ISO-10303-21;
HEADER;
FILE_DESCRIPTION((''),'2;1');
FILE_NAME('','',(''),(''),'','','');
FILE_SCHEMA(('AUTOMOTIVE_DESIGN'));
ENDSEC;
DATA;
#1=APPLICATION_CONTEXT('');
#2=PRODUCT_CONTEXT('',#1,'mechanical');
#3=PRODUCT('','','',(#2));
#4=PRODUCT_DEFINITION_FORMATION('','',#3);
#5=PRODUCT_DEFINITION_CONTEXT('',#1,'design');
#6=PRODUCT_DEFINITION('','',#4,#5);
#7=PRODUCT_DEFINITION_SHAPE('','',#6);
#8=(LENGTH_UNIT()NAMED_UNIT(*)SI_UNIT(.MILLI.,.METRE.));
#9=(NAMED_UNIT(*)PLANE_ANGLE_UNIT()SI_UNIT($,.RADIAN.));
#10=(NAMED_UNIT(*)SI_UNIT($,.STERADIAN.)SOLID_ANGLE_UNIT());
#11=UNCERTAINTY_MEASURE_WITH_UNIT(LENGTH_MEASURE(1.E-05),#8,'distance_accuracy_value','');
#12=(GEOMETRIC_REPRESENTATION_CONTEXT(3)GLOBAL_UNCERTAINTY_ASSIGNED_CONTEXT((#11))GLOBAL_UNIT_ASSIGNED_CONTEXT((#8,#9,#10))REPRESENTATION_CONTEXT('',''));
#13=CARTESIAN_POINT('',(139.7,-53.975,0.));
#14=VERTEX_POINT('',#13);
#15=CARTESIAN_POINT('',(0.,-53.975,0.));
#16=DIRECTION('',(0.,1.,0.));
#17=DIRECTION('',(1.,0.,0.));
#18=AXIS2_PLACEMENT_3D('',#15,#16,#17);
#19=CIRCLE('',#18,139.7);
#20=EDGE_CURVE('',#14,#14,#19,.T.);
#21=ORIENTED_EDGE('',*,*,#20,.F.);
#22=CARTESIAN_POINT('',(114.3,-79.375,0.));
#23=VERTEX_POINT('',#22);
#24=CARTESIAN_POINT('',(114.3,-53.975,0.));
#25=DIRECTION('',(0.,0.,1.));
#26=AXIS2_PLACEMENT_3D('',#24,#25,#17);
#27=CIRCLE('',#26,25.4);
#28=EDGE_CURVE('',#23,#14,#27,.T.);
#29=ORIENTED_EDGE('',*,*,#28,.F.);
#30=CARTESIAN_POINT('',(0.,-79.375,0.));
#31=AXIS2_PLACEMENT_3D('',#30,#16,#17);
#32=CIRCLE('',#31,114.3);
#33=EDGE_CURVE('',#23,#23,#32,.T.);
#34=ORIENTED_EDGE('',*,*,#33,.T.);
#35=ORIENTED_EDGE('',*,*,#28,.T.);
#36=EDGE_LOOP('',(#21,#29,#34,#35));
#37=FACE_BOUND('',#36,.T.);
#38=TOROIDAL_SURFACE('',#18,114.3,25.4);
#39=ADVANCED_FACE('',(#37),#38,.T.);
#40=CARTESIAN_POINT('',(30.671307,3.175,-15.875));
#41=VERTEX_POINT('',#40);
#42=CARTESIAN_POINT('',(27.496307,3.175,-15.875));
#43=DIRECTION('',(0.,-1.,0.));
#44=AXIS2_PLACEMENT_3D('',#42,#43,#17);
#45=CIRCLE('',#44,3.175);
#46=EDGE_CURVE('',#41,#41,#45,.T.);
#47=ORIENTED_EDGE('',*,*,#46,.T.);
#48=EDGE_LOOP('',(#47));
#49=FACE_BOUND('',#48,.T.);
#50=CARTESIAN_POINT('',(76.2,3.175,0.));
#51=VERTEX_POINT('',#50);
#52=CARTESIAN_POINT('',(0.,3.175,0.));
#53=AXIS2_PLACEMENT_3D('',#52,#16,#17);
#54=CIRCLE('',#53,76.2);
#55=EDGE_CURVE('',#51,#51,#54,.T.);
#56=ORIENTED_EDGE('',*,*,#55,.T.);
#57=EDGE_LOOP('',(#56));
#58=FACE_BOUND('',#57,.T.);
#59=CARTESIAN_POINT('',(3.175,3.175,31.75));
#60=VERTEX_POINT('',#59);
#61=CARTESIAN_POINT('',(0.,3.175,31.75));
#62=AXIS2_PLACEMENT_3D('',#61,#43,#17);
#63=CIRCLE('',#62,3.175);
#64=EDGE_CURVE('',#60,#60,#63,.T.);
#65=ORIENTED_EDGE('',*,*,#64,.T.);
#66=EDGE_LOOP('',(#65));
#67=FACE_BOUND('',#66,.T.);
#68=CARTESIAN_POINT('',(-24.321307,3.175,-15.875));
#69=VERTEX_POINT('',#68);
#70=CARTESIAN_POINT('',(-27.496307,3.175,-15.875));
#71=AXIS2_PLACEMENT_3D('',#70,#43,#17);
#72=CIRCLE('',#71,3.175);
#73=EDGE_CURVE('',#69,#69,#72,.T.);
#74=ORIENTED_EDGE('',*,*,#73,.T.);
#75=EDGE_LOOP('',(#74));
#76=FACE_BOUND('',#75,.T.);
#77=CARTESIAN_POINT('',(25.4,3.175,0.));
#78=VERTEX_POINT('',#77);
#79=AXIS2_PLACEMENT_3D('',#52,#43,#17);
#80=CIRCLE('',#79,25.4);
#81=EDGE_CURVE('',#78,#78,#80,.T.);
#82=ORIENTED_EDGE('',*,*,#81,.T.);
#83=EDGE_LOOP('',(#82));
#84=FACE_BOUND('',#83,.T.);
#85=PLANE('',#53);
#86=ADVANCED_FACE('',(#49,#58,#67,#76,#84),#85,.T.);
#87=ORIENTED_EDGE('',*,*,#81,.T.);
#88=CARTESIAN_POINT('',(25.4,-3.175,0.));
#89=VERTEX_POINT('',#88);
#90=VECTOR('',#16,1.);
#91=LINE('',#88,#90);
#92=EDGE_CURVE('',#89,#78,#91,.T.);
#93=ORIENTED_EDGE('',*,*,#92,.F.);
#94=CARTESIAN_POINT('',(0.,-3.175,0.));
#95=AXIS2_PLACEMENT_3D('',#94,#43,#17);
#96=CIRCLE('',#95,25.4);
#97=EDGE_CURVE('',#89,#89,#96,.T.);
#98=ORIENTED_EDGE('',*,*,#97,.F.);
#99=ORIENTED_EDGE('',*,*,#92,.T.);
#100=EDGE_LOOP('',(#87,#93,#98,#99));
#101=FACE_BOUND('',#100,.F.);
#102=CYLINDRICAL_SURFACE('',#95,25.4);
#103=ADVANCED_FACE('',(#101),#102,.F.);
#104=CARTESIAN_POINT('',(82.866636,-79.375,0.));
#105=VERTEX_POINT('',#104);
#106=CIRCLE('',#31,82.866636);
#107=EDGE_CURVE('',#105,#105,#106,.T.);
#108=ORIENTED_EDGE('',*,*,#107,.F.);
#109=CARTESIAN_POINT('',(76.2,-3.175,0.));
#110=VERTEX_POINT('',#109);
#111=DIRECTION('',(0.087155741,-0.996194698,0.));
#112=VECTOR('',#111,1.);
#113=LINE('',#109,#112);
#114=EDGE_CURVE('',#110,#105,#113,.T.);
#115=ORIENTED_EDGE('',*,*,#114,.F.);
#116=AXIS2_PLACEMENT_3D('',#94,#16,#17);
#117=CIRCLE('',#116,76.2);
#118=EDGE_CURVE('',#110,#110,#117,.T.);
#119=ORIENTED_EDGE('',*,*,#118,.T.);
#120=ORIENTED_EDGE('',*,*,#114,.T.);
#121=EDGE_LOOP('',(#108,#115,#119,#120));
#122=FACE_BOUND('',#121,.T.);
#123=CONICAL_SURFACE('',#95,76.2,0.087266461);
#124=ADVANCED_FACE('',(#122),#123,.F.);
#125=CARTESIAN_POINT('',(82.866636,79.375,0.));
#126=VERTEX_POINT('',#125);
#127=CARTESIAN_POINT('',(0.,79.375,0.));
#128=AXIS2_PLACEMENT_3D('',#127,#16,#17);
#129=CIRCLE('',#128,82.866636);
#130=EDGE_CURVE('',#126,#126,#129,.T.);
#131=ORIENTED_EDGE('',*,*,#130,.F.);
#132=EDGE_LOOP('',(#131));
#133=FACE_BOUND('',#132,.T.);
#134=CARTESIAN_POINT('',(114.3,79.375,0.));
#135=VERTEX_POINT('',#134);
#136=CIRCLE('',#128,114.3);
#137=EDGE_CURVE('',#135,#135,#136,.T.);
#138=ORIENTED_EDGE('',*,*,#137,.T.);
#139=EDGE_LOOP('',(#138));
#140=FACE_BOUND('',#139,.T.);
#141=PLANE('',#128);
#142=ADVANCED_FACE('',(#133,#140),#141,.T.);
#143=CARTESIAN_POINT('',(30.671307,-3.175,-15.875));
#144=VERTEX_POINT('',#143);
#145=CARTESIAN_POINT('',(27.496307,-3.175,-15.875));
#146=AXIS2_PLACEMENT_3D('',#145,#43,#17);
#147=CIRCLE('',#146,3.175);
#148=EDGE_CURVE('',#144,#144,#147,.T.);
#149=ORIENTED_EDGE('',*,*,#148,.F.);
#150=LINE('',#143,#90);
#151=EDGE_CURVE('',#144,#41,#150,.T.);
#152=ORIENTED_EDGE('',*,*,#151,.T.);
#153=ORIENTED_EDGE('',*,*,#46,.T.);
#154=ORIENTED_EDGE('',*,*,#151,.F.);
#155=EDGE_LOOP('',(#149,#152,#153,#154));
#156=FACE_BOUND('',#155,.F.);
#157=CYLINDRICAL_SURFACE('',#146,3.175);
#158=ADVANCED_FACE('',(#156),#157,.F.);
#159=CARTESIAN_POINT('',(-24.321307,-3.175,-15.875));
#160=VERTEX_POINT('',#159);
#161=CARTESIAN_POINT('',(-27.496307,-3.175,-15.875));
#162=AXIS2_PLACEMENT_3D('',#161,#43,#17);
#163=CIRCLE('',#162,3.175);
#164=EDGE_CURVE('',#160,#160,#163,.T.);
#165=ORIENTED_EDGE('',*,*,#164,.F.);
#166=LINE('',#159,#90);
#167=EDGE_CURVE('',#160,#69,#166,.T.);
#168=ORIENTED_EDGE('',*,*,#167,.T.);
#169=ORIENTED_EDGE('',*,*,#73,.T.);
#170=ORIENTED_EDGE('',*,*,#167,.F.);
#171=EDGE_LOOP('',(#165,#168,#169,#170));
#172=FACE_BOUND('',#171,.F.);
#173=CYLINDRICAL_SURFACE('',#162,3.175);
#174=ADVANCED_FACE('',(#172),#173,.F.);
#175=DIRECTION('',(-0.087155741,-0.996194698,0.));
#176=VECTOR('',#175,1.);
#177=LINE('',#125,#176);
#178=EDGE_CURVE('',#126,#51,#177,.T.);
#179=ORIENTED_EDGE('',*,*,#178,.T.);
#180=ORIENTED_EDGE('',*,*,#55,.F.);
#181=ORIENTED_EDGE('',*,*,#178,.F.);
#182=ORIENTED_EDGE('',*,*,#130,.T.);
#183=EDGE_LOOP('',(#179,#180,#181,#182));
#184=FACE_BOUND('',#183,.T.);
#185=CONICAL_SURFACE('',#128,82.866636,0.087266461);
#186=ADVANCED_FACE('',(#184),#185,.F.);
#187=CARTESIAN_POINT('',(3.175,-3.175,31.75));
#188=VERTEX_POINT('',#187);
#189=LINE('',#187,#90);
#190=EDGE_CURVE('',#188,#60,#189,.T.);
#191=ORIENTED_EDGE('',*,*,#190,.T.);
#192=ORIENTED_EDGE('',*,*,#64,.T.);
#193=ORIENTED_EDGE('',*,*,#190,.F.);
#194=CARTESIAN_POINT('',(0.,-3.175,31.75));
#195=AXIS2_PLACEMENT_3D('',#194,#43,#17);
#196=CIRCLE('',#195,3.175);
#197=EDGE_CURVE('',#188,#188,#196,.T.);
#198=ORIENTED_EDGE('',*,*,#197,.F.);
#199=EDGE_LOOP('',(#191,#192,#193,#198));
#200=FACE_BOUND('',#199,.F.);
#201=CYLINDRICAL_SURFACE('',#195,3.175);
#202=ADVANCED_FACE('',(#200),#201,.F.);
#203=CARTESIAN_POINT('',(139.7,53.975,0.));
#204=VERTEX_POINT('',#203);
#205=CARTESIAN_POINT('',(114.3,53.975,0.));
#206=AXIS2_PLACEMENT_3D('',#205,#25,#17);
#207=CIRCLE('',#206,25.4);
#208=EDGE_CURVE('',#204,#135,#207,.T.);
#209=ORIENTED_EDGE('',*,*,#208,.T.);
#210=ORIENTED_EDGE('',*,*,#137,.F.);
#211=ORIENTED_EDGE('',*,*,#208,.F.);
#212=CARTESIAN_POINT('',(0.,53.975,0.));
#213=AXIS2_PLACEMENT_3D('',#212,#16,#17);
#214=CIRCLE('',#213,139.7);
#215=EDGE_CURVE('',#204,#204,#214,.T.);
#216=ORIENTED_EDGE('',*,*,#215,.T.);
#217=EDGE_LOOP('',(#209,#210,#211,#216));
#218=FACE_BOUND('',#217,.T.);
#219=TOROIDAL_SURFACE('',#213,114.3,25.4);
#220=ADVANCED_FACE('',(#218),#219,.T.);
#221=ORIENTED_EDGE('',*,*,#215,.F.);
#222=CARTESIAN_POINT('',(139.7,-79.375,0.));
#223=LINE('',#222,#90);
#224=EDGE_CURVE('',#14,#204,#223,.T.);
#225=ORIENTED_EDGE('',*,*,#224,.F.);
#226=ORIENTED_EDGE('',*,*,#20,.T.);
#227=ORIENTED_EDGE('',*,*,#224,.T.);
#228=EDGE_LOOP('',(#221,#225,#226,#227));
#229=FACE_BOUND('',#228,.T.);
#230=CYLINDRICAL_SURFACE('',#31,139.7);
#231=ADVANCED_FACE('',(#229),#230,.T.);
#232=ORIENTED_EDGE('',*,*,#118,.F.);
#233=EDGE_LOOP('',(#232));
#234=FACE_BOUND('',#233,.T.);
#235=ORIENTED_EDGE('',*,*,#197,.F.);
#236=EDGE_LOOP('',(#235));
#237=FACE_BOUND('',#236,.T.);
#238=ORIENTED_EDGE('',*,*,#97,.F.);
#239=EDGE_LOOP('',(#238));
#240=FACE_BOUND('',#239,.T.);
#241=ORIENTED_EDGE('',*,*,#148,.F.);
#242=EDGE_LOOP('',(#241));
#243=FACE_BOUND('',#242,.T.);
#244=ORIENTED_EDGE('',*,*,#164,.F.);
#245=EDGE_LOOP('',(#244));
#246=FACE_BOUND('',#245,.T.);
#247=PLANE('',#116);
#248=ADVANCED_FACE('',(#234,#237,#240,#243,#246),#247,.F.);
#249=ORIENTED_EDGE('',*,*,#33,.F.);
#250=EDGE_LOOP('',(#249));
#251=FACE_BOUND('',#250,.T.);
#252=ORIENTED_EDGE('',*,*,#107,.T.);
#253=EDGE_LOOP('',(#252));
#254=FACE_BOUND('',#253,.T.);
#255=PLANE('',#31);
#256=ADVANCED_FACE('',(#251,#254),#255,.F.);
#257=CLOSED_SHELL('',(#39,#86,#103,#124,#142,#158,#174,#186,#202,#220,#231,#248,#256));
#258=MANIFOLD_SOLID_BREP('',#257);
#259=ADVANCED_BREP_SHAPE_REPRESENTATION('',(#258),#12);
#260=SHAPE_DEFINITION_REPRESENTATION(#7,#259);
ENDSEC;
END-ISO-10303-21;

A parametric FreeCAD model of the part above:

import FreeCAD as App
import Part
import Sketcher
from FreeCAD import Vector
Q = App.Units.Quantity


def edges_at(feature, points):
    """Names of the edges that pass closest to the given points."""
    edges = feature.Shape.Edges
    near = lambda p: min(range(len(edges)), key=lambda i: edges[i].distToShape(Part.Vertex(*p))[0])
    return sorted({f"Edge{near(p) + 1}" for p in points})


def add_polygon(sketch, points):
    """Adds a closed chain of lines whose ends are joined by coincident constraints."""
    first, n = sketch.GeometryCount, len(points)
    for a, b in zip(points, points[1:] + points[:1]):
        sketch.addGeometry(Part.LineSegment(App.Vector(*a, 0), App.Vector(*b, 0)), False)
    for i in range(n):
        sketch.addConstraint(Sketcher.Constraint("Coincident", first + i, 2, first + (i + 1) % n, 1))

doc = App.newDocument("Part")
params = doc.addObject("Spreadsheet::Sheet", "Params")
for row, (alias, value) in enumerate([
    ("sketch1_width", "3 in"),
    ("sketch1_height", "0.25 in"),
    ("revolution_angle", "360 deg"),
    ("fillet_radius", "1 in"),
    ("sketch2_diameter", "2 in"),
    ("sketch2_diameter2", "0.25 in"),
], start=1):
    params.set(f"A{row}", alias)
    params.set(f"B{row}", "=" + value)
    params.setAlias(f"B{row}", alias)

body = doc.addObject("PartDesign::Body", "Body")

# Sketch on XY plane
sketch1 = doc.addObject("Sketcher::SketchObject", "Sketch")
body.addObject(sketch1)
sketch1.AttachmentSupport = (doc.XY_Plane, [""])
sketch1.MapMode = "FlatFace"
add_polygon(sketch1, [(0, 3.175), (0, -3.175), (76.2, -3.175), (82.866636, -79.375), (139.7, -79.375), (139.7, 79.375), (82.866636, 79.375), (76.2, 3.175)])  # lines 0-7
sketch1.addConstraint([
    Sketcher.Constraint("Vertical", 0),
    Sketcher.Constraint("Horizontal", 1),
    Sketcher.Constraint("Horizontal", 3),
    Sketcher.Constraint("Vertical", 4),
    Sketcher.Constraint("Horizontal", 5),
    Sketcher.Constraint("Horizontal", 7),
    Sketcher.Constraint("Symmetric", 0, 2, 7, 2, -1, 1),
    Sketcher.Constraint("Symmetric", 2, 2, 5, 2, -1),
    Sketcher.Constraint("Vertical", 1, 2, 6, 2),
    Sketcher.Constraint("DistanceX", 1, 1, 1, 2, Q("3 in")),
    Sketcher.Constraint("Angle", 2, Q("-85 deg")),
    Sketcher.Constraint("DistanceY", 2, 2, 1, 2, Q("3 in")),
    Sketcher.Constraint("DistanceY", 0, 2, 0, 1, Q("0.25 in")),
    Sketcher.Constraint("DistanceX", -1, 1, 3, 2, Q("5.5 in")),
])
sketch1.setExpression("Constraints[17]", "Params.sketch1_width")
sketch1.setExpression("Constraints[20]", "Params.sketch1_height")
revolution = doc.addObject("PartDesign::Revolution", "Revolution")
body.addObject(revolution)
revolution.Profile = sketch1
revolution.ReferenceAxis = (sketch1, ["V_Axis"])
revolution.setExpression("Angle", "Params.revolution_angle")
doc.recompute()

fillet = doc.addObject("PartDesign::Fillet", "Fillet")
body.addObject(fillet)
fillet.Base = (revolution, edges_at(revolution, [(-139.7, -79.375, 0), (-139.7, 79.375, 0)]))
fillet.setExpression("Radius", "Params.fillet_radius")

# Sketch on XZ plane
sketch2 = doc.addObject("Sketcher::SketchObject", "Sketch001")
body.addObject(sketch2)
sketch2.AttachmentSupport = (doc.XZ_Plane, [""])
sketch2.MapMode = "FlatFace"
sketch2.AttachmentOffset = App.Placement(Vector(0, 0, 0.125 * 25.4), App.Rotation())
sketch2.addGeometry([
    Part.Circle(Vector(0, 0, 0), Vector(0, 0, 1), 25.4),
    Part.Circle(Vector(0, 31.75, 0), Vector(0, 0, 1), 3.175),
    Part.Circle(Vector(-27.496307, -15.875, 0), Vector(0, 0, 1), 3.175),
    Part.Circle(Vector(27.496307, -15.875, 0), Vector(0, 0, 1), 3.175),
], False)
sketch2.addConstraint([
    Sketcher.Constraint("Coincident", 0, 3, -1, 1),
    Sketcher.Constraint("Equal", 1, 2),
    Sketcher.Constraint("Equal", 2, 3),
    Sketcher.Constraint("Symmetric", 2, 3, 3, 3, -2),
    Sketcher.Constraint("PointOnObject", 1, 3, -2),
    Sketcher.Constraint("Diameter", 0, Q("2 in")),
    Sketcher.Constraint("Diameter", 1, Q("0.25 in")),
    Sketcher.Constraint("DistanceY", -1, 1, 1, 3, Q("1.25 in")),
    Sketcher.Constraint("DistanceY", 2, 3, -1, 1, Q("0.625 in")),
    Sketcher.Constraint("DistanceX", 2, 3, -1, 1, 27.496307),
])
sketch2.setExpression("Constraints[5]", "Params.sketch2_diameter")
sketch2.setExpression("Constraints[6]", "Params.sketch2_diameter2")
pocket1 = doc.addObject("PartDesign::Pocket", "Pocket")
body.addObject(pocket1)
pocket1.Profile = sketch2
pocket1.Type = "ThroughAll"

doc.recompute()
